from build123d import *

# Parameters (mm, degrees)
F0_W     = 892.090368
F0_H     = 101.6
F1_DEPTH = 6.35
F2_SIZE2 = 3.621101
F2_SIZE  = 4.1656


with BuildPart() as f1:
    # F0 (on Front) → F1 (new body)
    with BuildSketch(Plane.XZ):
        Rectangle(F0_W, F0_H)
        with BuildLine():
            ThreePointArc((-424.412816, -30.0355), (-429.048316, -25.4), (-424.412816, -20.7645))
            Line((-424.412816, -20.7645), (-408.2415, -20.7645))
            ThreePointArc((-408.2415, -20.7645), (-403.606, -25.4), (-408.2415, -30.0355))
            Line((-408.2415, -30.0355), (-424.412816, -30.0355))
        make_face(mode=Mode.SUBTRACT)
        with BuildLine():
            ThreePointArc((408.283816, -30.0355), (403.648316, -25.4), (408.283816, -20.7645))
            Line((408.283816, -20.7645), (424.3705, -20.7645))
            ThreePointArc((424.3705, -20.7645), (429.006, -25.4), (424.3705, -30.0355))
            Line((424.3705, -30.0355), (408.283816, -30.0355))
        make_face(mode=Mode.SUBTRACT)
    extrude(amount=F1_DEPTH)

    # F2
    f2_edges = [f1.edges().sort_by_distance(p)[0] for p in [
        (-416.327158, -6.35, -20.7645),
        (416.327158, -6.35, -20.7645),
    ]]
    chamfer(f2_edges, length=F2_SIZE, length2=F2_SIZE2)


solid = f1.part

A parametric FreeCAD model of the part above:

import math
import FreeCAD as App
import Part
import Sketcher
from FreeCAD import Vector
Q = App.Units.Quantity


def edges_at(feature, points):
    """Names of the edges that pass closest to the given points."""
    edges = feature.Shape.Edges
    near = lambda p: min(range(len(edges)), key=lambda i: edges[i].distToShape(Part.Vertex(*p))[0])
    return sorted({f"Edge{near(p) + 1}" for p in points})

doc = App.newDocument("Part")
body = doc.addObject("PartDesign::Body", "Body")

# Sketch on XZ plane
sketch1 = body.newObject("Sketcher::SketchObject", "Sketch")
sketch1.AttachmentSupport = (doc.getObject("XZ_Plane"), [""])
sketch1.MapMode = "FlatFace"
sketch1.addGeometry(Part.LineSegment(Vector(-446.045184, 50.8, 0), Vector(-446.045184, -50.8, 0)), False)
sketch1.addGeometry(Part.LineSegment(Vector(-446.045184, -50.8, 0), Vector(446.045184, -50.8, 0)), False)
sketch1.addGeometry(Part.LineSegment(Vector(446.045184, -50.8, 0), Vector(446.045184, 50.8, 0)), False)
sketch1.addGeometry(Part.LineSegment(Vector(446.045184, 50.8, 0), Vector(-446.045184, 50.8, 0)), False)
sketch1.addGeometry(Part.LineSegment(Vector(-408.2415, -30.0355, 0), Vector(-424.412816, -30.0355, 0)), False)
sketch1.addGeometry(Part.ArcOfCircle(Part.Circle(Vector(-424.412816, -25.4, 0), Vector(0, 0, 1), 4.6355), math.radians(90), math.radians(270)), False)
sketch1.addGeometry(Part.LineSegment(Vector(-424.412816, -20.7645, 0), Vector(-408.2415, -20.7645, 0)), False)
sketch1.addGeometry(Part.ArcOfCircle(Part.Circle(Vector(-408.2415, -25.4, 0), Vector(0, 0, 1), 4.6355), math.radians(-90), math.radians(90)), False)
sketch1.addGeometry(Part.LineSegment(Vector(424.3705, -30.0355, 0), Vector(408.283816, -30.0355, 0)), False)
sketch1.addGeometry(Part.ArcOfCircle(Part.Circle(Vector(408.283816, -25.4, 0), Vector(0, 0, 1), 4.6355), math.radians(90), math.radians(270)), False)
sketch1.addGeometry(Part.LineSegment(Vector(408.283816, -20.7645, 0), Vector(424.3705, -20.7645, 0)), False)
sketch1.addGeometry(Part.ArcOfCircle(Part.Circle(Vector(424.3705, -25.4, 0), Vector(0, 0, 1), 4.6355), math.radians(-90), math.radians(90)), False)
sketch1.addConstraint(Sketcher.Constraint("Coincident", 0, 2, 1, 1))
sketch1.addConstraint(Sketcher.Constraint("Coincident", 1, 2, 2, 1))
sketch1.addConstraint(Sketcher.Constraint("Coincident", 2, 2, 3, 1))
sketch1.addConstraint(Sketcher.Constraint("Coincident", 3, 2, 0, 1))
sketch1.addConstraint(Sketcher.Constraint("Tangent", 4, 2, 5, 2))
sketch1.addConstraint(Sketcher.Constraint("Tangent", 5, 1, 6, 1))
sketch1.addConstraint(Sketcher.Constraint("Tangent", 6, 2, 7, 2))
sketch1.addConstraint(Sketcher.Constraint("Tangent", 7, 1, 4, 1))
sketch1.addConstraint(Sketcher.Constraint("Tangent", 8, 2, 9, 2))
sketch1.addConstraint(Sketcher.Constraint("Tangent", 9, 1, 10, 1))
sketch1.addConstraint(Sketcher.Constraint("Tangent", 10, 2, 11, 2))
sketch1.addConstraint(Sketcher.Constraint("Tangent", 11, 1, 8, 1))
sketch1.addConstraint(Sketcher.Constraint("Vertical", 0))
sketch1.addConstraint(Sketcher.Constraint("Horizontal", 1))
sketch1.addConstraint(Sketcher.Constraint("Vertical", 2))
sketch1.addConstraint(Sketcher.Constraint("Horizontal", 3))
sketch1.addConstraint(Sketcher.Constraint("Horizontal", 4))
sketch1.addConstraint(Sketcher.Constraint("Horizontal", 6))
sketch1.addConstraint(Sketcher.Constraint("Horizontal", 8))
sketch1.addConstraint(Sketcher.Constraint("Horizontal", 10))
sketch1.addConstraint(Sketcher.Constraint("Equal", 7, 9))
sketch1.addConstraint(Sketcher.Constraint("Symmetric", 0, 2, 2, 2, -1, 1))
sketch1.addConstraint(Sketcher.Constraint("Horizontal", 7, 3, 9, 3))
sketch1.addConstraint(Sketcher.Constraint("DistanceY", 0, 2, 0, 1, Q("4 in")))
sketch1.addConstraint(Sketcher.Constraint("DistanceY", 5, 3, -1, 1, Q("1 in")))
sketch1.addConstraint(Sketcher.Constraint("Radius", 5, Q("0.1825 in")))
sketch1.addConstraint(Sketcher.Constraint("DistanceX", 7, 3, 11, 3, Q("32.78 in")))
sketch1.addConstraint(Sketcher.Constraint("DistanceX", 5, 3, 1, 2, Q("34.27 in")))
sketch1.addConstraint(Sketcher.Constraint("DistanceX", 0, 2, 9, 3, Q("33.635 in")))
sketch1.addConstraint(Sketcher.Constraint("DistanceX", 7, 3, -1, 1, Q("16.0725 in")))
sketch1.addConstraint(Sketcher.Constraint("DistanceX", 1, 1, 1, 2, Q("892.090368 mm")))
pad1 = body.newObject("PartDesign::Pad", "Pad")
pad1.Profile = sketch1
pad1.Length = Q("0.25 in")
doc.recompute()

chamfer = body.newObject("PartDesign::Chamfer", "Chamfer")
chamfer.Base = (pad1, edges_at(pad1, [(-416.327, -6.35, -20.765), (416.327, -6.35, -20.765)]))
chamfer.ChamferType = "Two distances"
chamfer.Size = Q("0.164 in")
chamfer.Size2 = 3.621101

doc.recompute()
